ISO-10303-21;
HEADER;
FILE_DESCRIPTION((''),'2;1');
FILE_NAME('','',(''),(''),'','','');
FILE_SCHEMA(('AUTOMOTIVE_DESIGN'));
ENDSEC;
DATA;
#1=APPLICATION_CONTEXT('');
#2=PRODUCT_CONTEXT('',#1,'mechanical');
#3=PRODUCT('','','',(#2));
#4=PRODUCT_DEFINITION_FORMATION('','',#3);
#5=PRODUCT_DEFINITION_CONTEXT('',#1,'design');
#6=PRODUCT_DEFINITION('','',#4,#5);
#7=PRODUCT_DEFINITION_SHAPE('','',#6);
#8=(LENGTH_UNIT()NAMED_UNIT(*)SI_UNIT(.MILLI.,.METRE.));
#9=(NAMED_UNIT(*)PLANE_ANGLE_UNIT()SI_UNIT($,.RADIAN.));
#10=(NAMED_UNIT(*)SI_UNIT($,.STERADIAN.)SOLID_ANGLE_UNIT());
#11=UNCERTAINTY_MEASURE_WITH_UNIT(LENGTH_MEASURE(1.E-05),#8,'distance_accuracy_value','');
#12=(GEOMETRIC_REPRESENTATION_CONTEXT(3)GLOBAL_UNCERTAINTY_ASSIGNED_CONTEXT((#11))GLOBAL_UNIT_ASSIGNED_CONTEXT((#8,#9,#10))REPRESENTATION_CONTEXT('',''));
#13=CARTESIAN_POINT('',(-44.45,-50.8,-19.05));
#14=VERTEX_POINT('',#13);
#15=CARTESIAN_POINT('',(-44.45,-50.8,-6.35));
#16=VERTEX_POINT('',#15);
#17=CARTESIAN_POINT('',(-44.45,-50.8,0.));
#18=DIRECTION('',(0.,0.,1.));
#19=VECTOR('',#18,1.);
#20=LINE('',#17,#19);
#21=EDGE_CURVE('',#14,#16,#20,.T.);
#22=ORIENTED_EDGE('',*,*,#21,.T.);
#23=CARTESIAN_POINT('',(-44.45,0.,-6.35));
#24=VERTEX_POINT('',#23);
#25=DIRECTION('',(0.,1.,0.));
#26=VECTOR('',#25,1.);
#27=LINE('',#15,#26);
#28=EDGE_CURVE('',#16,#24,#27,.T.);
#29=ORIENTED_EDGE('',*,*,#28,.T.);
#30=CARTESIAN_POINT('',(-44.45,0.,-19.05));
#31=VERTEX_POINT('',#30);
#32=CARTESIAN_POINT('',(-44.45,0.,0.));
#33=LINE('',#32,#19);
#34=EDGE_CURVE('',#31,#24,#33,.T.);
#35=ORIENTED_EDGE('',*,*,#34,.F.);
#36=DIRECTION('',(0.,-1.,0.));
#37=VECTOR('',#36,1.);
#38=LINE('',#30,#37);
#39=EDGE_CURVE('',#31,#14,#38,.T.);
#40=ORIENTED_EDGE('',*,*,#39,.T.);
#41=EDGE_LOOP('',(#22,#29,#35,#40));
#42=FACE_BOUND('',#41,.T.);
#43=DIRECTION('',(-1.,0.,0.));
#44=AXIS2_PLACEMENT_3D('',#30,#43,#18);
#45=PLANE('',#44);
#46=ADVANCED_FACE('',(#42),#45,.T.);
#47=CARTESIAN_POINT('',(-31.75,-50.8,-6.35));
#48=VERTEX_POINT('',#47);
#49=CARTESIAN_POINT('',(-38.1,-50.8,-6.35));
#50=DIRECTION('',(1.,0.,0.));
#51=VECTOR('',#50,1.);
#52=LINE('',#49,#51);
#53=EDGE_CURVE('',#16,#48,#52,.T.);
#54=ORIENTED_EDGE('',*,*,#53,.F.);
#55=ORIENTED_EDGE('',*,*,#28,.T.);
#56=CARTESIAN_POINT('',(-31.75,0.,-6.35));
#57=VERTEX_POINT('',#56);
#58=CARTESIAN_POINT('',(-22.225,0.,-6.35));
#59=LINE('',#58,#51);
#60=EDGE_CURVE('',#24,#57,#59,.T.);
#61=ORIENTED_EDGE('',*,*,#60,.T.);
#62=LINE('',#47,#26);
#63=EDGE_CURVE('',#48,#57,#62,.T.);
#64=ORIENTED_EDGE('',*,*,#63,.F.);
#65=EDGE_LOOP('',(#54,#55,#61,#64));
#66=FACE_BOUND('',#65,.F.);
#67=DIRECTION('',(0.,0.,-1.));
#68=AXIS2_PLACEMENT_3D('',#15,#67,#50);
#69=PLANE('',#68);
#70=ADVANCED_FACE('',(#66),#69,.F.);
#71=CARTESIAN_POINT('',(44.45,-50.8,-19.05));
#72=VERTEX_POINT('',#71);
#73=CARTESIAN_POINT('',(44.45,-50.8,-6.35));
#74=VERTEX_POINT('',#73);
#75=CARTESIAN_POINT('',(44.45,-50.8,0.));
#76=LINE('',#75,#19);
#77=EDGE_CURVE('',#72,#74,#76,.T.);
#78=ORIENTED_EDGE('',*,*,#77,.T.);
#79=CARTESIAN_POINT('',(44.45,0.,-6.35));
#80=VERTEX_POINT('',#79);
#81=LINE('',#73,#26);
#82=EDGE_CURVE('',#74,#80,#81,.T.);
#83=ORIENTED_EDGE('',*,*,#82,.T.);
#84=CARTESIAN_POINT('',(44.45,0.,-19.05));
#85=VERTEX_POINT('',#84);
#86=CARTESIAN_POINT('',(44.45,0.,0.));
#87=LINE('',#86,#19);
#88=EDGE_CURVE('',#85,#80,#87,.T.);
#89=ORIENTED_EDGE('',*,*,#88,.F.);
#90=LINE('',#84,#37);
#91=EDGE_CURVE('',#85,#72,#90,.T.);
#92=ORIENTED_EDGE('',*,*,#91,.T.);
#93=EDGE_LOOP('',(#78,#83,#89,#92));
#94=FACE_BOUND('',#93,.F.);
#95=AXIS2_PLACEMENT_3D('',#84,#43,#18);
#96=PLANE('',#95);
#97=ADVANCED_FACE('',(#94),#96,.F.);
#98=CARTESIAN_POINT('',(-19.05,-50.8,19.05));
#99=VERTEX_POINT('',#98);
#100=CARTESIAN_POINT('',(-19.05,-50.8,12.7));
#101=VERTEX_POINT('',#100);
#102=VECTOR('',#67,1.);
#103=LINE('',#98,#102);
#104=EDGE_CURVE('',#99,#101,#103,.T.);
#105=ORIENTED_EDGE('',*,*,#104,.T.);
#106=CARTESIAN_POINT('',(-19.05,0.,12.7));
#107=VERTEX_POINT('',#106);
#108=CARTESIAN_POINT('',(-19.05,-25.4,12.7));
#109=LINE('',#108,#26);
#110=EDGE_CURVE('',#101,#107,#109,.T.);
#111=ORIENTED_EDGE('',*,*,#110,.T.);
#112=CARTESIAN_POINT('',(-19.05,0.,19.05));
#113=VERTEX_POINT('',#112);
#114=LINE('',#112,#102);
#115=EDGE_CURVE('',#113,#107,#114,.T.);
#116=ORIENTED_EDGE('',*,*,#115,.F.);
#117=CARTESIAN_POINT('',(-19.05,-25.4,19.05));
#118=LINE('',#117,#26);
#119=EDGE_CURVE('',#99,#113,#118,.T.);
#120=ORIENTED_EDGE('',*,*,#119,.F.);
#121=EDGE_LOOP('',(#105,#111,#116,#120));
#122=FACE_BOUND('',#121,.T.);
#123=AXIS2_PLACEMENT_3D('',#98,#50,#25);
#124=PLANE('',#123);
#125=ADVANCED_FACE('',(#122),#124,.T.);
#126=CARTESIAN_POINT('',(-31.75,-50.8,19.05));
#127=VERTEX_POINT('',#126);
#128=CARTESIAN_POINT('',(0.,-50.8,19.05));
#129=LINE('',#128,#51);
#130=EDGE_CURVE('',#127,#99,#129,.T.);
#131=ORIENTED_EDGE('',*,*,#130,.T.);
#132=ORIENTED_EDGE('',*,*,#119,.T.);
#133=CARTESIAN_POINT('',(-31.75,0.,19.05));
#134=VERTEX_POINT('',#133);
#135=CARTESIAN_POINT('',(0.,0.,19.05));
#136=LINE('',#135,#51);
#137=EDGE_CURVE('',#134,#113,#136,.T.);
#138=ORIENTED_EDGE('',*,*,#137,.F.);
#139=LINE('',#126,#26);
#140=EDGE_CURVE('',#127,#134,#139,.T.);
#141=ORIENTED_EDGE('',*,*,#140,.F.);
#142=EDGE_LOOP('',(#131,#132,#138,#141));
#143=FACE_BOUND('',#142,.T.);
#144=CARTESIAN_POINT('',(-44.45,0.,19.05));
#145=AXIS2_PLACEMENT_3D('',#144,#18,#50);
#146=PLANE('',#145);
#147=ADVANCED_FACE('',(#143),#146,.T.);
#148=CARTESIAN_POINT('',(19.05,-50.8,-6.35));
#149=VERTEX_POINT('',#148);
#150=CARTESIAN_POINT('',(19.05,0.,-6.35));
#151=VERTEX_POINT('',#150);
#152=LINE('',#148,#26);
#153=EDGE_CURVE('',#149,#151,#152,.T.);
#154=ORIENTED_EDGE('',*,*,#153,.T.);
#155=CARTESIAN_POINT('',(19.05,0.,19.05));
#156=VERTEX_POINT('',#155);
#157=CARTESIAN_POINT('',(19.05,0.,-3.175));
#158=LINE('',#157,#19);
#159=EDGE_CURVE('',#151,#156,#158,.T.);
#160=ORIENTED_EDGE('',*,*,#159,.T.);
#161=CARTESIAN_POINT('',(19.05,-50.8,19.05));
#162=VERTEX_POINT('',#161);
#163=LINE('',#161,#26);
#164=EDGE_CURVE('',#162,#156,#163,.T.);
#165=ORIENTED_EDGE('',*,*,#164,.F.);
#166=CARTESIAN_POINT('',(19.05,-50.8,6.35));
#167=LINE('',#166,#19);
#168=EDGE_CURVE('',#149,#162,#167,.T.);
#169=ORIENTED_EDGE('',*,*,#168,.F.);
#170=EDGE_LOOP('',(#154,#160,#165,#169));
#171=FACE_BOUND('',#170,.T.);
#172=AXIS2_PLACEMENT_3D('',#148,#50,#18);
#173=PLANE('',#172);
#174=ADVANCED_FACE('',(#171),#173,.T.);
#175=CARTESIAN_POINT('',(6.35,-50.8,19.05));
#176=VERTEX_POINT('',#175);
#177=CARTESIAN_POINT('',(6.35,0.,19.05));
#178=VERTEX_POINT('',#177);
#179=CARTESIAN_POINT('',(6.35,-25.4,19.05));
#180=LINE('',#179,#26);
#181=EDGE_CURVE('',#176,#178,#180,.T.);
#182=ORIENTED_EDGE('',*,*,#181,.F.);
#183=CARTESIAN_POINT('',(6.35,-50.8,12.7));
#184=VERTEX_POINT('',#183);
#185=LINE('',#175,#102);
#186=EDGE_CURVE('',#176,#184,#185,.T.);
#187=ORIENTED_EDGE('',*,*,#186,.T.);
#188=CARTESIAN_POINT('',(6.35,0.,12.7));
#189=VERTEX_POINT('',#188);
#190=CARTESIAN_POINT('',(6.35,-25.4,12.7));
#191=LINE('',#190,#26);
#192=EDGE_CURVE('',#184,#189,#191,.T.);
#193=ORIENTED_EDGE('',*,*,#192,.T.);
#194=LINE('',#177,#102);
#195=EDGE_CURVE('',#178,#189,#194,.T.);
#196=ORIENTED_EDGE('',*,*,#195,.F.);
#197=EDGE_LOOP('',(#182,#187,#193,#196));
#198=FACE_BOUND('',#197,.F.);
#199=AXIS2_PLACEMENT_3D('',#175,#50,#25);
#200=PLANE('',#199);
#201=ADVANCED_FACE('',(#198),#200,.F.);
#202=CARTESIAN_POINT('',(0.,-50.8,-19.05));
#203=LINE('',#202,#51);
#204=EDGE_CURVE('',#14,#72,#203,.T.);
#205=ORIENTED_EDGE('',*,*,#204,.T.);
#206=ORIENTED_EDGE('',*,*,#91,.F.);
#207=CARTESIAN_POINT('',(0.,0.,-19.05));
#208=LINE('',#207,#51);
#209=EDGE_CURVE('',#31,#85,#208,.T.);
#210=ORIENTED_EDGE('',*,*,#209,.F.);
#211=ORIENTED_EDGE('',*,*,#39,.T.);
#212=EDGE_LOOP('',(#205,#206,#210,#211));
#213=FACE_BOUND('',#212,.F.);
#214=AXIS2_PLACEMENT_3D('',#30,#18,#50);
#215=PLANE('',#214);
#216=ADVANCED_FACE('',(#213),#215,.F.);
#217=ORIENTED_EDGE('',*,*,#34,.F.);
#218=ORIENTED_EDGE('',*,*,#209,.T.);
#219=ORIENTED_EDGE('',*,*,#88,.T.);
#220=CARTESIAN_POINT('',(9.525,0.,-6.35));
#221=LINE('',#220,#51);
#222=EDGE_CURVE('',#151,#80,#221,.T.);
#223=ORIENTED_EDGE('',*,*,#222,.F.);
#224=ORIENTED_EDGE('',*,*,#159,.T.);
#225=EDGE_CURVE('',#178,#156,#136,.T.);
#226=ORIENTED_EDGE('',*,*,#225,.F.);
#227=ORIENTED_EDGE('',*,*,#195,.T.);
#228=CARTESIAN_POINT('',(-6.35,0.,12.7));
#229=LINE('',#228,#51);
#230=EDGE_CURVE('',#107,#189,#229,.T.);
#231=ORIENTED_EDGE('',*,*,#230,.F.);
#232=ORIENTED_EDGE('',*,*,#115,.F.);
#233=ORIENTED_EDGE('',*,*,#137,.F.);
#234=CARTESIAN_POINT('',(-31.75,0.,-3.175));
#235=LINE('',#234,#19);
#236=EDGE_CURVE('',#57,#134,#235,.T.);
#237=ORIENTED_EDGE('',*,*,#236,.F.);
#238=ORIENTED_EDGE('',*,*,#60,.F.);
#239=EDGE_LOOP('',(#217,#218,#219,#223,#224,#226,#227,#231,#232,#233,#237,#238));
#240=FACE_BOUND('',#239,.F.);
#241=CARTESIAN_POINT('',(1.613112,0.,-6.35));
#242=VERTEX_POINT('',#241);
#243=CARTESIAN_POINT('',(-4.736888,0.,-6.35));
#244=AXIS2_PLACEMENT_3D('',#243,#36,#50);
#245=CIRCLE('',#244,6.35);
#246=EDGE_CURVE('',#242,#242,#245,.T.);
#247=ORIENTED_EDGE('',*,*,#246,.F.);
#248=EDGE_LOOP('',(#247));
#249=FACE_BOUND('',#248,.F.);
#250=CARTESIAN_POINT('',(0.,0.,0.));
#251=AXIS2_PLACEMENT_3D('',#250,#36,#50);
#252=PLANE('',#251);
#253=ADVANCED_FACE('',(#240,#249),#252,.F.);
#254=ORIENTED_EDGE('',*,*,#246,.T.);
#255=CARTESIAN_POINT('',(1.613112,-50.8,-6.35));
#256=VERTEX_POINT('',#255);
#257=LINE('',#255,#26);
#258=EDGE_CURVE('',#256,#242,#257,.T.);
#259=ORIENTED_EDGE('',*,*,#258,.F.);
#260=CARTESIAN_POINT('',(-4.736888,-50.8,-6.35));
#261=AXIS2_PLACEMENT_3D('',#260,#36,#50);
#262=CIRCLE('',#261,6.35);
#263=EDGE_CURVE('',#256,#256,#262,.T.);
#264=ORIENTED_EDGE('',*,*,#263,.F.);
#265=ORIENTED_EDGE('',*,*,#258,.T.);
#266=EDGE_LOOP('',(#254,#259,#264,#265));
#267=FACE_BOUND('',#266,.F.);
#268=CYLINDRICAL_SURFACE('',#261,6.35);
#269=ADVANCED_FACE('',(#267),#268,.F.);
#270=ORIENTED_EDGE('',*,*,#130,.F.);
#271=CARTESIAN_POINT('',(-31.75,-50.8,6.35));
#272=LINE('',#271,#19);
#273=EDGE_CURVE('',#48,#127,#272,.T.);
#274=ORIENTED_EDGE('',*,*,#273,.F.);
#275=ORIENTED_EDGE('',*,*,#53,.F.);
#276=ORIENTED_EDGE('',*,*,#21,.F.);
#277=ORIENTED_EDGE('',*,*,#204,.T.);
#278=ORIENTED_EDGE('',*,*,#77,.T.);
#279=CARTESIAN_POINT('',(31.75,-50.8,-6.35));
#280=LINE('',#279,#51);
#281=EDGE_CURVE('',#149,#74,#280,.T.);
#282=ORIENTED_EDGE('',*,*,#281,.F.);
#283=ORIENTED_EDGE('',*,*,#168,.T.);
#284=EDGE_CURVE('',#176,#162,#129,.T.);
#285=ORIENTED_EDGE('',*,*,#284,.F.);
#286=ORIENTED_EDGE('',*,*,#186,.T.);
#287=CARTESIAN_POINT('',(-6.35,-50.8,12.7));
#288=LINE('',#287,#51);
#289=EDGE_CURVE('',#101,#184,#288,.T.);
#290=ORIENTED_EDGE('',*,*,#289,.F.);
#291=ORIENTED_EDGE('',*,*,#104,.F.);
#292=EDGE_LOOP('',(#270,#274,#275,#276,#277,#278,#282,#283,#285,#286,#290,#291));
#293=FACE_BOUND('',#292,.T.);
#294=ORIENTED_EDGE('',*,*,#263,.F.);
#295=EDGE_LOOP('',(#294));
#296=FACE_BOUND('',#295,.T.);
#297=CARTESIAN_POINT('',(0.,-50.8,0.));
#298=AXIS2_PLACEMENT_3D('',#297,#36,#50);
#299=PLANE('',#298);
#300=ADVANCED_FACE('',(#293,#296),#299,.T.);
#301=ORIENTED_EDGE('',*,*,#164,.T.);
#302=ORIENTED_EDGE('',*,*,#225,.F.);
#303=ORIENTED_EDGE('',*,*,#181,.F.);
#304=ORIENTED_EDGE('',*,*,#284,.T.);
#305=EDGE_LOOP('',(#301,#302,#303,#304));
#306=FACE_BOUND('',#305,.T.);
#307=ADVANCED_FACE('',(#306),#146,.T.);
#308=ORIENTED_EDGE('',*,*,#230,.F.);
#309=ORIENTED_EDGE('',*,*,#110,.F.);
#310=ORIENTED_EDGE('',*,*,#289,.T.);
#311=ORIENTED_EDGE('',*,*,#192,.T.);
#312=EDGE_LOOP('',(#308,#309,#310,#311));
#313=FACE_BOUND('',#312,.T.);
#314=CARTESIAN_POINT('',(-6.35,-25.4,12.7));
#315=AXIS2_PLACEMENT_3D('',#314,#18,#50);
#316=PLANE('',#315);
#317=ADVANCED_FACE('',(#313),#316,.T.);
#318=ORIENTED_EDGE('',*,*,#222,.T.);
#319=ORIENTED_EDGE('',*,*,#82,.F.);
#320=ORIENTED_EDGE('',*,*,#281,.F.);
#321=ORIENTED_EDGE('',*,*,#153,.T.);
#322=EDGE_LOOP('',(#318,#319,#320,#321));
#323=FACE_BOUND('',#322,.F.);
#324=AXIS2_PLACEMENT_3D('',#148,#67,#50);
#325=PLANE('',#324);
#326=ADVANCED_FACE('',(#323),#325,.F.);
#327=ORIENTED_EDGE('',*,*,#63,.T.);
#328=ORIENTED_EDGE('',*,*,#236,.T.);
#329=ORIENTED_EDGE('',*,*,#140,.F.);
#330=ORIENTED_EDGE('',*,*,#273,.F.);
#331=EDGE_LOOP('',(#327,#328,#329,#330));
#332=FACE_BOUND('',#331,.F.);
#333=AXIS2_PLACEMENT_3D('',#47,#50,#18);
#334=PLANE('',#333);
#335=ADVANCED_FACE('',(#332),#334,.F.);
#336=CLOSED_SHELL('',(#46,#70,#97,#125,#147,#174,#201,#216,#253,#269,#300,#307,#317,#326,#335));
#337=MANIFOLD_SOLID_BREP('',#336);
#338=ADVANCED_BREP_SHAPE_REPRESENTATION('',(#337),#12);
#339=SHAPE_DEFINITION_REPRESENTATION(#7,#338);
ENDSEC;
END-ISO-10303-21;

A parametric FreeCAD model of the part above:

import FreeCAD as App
import Part
import Sketcher
from FreeCAD import Vector
Q = App.Units.Quantity

doc = App.newDocument("Part")
body = doc.addObject("PartDesign::Body", "Body")

# Sketch on XZ plane
sketch1 = doc.addObject("Sketcher::SketchObject", "Sketch")
body.addObject(sketch1)
sketch1.AttachmentSupport = (doc.XZ_Plane, [""])
sketch1.MapMode = "FlatFace"
sketch1.addGeometry(Part.LineSegment(Vector(-44.45, 19.05, 0), Vector(-44.45, -19.05, 0)), False)
sketch1.addGeometry(Part.LineSegment(Vector(-44.45, -19.05, 0), Vector(44.45, -19.05, 0)), False)
sketch1.addGeometry(Part.LineSegment(Vector(44.45, -19.05, 0), Vector(44.45, 19.05, 0)), False)
sketch1.addGeometry(Part.LineSegment(Vector(44.45, 19.05, 0), Vector(-44.45, 19.05, 0)), False)
sketch1.addConstraint(Sketcher.Constraint("Coincident", 0, 2, 1, 1))
sketch1.addConstraint(Sketcher.Constraint("Coincident", 1, 2, 2, 1))
sketch1.addConstraint(Sketcher.Constraint("Coincident", 2, 2, 3, 1))
sketch1.addConstraint(Sketcher.Constraint("Coincident", 3, 2, 0, 1))
sketch1.addConstraint(Sketcher.Constraint("Vertical", 0))
sketch1.addConstraint(Sketcher.Constraint("Horizontal", 1))
sketch1.addConstraint(Sketcher.Constraint("Vertical", 2))
sketch1.addConstraint(Sketcher.Constraint("Horizontal", 3))
sketch1.addConstraint(Sketcher.Constraint("Symmetric", 0, 2, 2, 2, -1, 1))
sketch1.addConstraint(Sketcher.Constraint("DistanceX", 1, 1, 1, 2, Q("3.5 in")))
sketch1.addConstraint(Sketcher.Constraint("DistanceY", 0, 2, 0, 1, Q("1.5 in")))
pad1 = doc.addObject("PartDesign::Pad", "Pad")
body.addObject(pad1)
pad1.Profile = sketch1
pad1.Length = Q("2 in")

# Sketch on XZ plane
sketch2 = doc.addObject("Sketcher::SketchObject", "Sketch001")
body.addObject(sketch2)
sketch2.AttachmentSupport = (doc.XZ_Plane, [""])
sketch2.MapMode = "FlatFace"
sketch2.AttachmentOffset = App.Placement(Vector(0, 0, 2 * 25.4), App.Rotation())
sketch2.addGeometry(Part.LineSegment(Vector(-44.45, 19.05, 0), Vector(-44.45, -6.35, 0)), False)
sketch2.addGeometry(Part.LineSegment(Vector(-44.45, -6.35, 0), Vector(-31.75, -6.35, 0)), False)
sketch2.addGeometry(Part.LineSegment(Vector(-31.75, -6.35, 0), Vector(-31.75, 19.05, 0)), False)
sketch2.addGeometry(Part.LineSegment(Vector(-31.75, 19.05, 0), Vector(-44.45, 19.05, 0)), False)
sketch2.addConstraint(Sketcher.Constraint("Coincident", 0, 2, 1, 1))
sketch2.addConstraint(Sketcher.Constraint("Coincident", 1, 2, 2, 1))
sketch2.addConstraint(Sketcher.Constraint("Coincident", 2, 2, 3, 1))
sketch2.addConstraint(Sketcher.Constraint("Coincident", 3, 2, 0, 1))
sketch2.addConstraint(Sketcher.Constraint("Vertical", 0))
sketch2.addConstraint(Sketcher.Constraint("Horizontal", 1))
sketch2.addConstraint(Sketcher.Constraint("Vertical", 2))
sketch2.addConstraint(Sketcher.Constraint("Horizontal", 3))
sketch2.addConstraint(Sketcher.Constraint("DistanceY", 0, 2, 0, 1, Q("1 in")))
sketch2.addConstraint(Sketcher.Constraint("DistanceX", 1, 1, 1, 2, Q("0.5 in")))
sketch2.addConstraint(Sketcher.Constraint("DistanceX", 0, 2, -1, 1, Q("1.75 in")))
sketch2.addConstraint(Sketcher.Constraint("DistanceY", 0, 2, -1, 1, Q("0.25 in")))
pocket1 = doc.addObject("PartDesign::Pocket", "Pocket")
body.addObject(pocket1)
pocket1.Profile = sketch2
pocket1.Type = "ThroughAll"

# Sketch on XZ plane
sketch3 = doc.addObject("Sketcher::SketchObject", "Sketch002")
body.addObject(sketch3)
sketch3.AttachmentSupport = (doc.XZ_Plane, [""])
sketch3.MapMode = "FlatFace"
sketch3.AttachmentOffset = App.Placement(Vector(0, 0, 2 * 25.4), App.Rotation())
sketch3.addGeometry(Part.LineSegment(Vector(19.05, 19.05, 0), Vector(19.05, -6.35, 0)), False)
sketch3.addGeometry(Part.LineSegment(Vector(19.05, -6.35, 0), Vector(44.45, -6.35, 0)), False)
sketch3.addGeometry(Part.LineSegment(Vector(44.45, -6.35, 0), Vector(44.45, 19.05, 0)), False)
sketch3.addGeometry(Part.LineSegment(Vector(44.45, 19.05, 0), Vector(19.05, 19.05, 0)), False)
sketch3.addConstraint(Sketcher.Constraint("Coincident", 0, 2, 1, 1))
sketch3.addConstraint(Sketcher.Constraint("Coincident", 1, 2, 2, 1))
sketch3.addConstraint(Sketcher.Constraint("Coincident", 2, 2, 3, 1))
sketch3.addConstraint(Sketcher.Constraint("Coincident", 3, 2, 0, 1))
sketch3.addConstraint(Sketcher.Constraint("Vertical", 0))
sketch3.addConstraint(Sketcher.Constraint("Horizontal", 1))
sketch3.addConstraint(Sketcher.Constraint("Vertical", 2))
sketch3.addConstraint(Sketcher.Constraint("Horizontal", 3))
sketch3.addConstraint(Sketcher.Constraint("Equal", 3, 0))
sketch3.addConstraint(Sketcher.Constraint("DistanceX", 1, 1, 1, 2, Q("1 in")))
sketch3.addConstraint(Sketcher.Constraint("DistanceX", -1, 1, 0, 2, Q("0.75 in")))
sketch3.addConstraint(Sketcher.Constraint("DistanceY", 0, 2, -1, 1, Q("0.25 in")))
pocket2 = doc.addObject("PartDesign::Pocket", "Pocket001")
body.addObject(pocket2)
pocket2.Profile = sketch3
pocket2.Type = "ThroughAll"

# Sketch on XZ plane
sketch4 = doc.addObject("Sketcher::SketchObject", "Sketch003")
body.addObject(sketch4)
sketch4.AttachmentSupport = (doc.XZ_Plane, [""])
sketch4.MapMode = "FlatFace"
sketch4.AttachmentOffset = App.Placement(Vector(0, 0, 2 * 25.4), App.Rotation())
sketch4.addGeometry(Part.Circle(Vector(-4.736888, -6.35, 0), Vector(0, 0, 1), 6.35), False)
sketch4.addConstraint(Sketcher.Constraint("Diameter", 0, Q("0.5 in")))
sketch4.addConstraint(Sketcher.Constraint("DistanceY", 0, 3, -1, 1, Q("0.25 in")))
sketch4.addConstraint(Sketcher.Constraint("DistanceX", 0, 3, -1, 1, 4.736888))
pocket3 = doc.addObject("PartDesign::Pocket", "Pocket002")
body.addObject(pocket3)
pocket3.Profile = sketch4
pocket3.Type = "ThroughAll"

# Sketch on XY plane
sketch5 = doc.addObject("Sketcher::SketchObject", "Sketch004")
body.addObject(sketch5)
sketch5.AttachmentSupport = (doc.XY_Plane, [""])
sketch5.MapMode = "FlatFace"
sketch5.AttachmentOffset = App.Placement(Vector(0, 0, 0.75 * 25.4), App.Rotation())
sketch5.addGeometry(Part.LineSegment(Vector(-19.05, 0, 0), Vector(-19.05, -50.8, 0)), False)
sketch5.addGeometry(Part.LineSegment(Vector(-19.05, -50.8, 0), Vector(6.35, -50.8, 0)), False)
sketch5.addGeometry(Part.LineSegment(Vector(6.35, -50.8, 0), Vector(6.35, 0, 0)), False)
sketch5.addGeometry(Part.LineSegment(Vector(6.35, 0, 0), Vector(-19.05, 0, 0)), False)
sketch5.addConstraint(Sketcher.Constraint("Coincident", 0, 2, 1, 1))
sketch5.addConstraint(Sketcher.Constraint("Coincident", 1, 2, 2, 1))
sketch5.addConstraint(Sketcher.Constraint("Coincident", 2, 2, 3, 1))
sketch5.addConstraint(Sketcher.Constraint("Coincident", 3, 2, 0, 1))
sketch5.addConstraint(Sketcher.Constraint("Vertical", 0))
sketch5.addConstraint(Sketcher.Constraint("Horizontal", 1))
sketch5.addConstraint(Sketcher.Constraint("Vertical", 2))
sketch5.addConstraint(Sketcher.Constraint("Horizontal", 3))
sketch5.addConstraint(Sketcher.Constraint("PointOnObject", 2, 2, -1))
sketch5.addConstraint(Sketcher.Constraint("DistanceX", 1, 1, 1, 2, Q("1 in")))
sketch5.addConstraint(Sketcher.Constraint("DistanceY", 0, 2, 0, 1, Q("2 in")))
sketch5.addConstraint(Sketcher.Constraint("DistanceX", 0, 2, -1, 1, Q("0.75 in")))
pocket4 = doc.addObject("PartDesign::Pocket", "Pocket003")
body.addObject(pocket4)
pocket4.Profile = sketch5
pocket4.Length = Q("0.25 in")

doc.recompute()
